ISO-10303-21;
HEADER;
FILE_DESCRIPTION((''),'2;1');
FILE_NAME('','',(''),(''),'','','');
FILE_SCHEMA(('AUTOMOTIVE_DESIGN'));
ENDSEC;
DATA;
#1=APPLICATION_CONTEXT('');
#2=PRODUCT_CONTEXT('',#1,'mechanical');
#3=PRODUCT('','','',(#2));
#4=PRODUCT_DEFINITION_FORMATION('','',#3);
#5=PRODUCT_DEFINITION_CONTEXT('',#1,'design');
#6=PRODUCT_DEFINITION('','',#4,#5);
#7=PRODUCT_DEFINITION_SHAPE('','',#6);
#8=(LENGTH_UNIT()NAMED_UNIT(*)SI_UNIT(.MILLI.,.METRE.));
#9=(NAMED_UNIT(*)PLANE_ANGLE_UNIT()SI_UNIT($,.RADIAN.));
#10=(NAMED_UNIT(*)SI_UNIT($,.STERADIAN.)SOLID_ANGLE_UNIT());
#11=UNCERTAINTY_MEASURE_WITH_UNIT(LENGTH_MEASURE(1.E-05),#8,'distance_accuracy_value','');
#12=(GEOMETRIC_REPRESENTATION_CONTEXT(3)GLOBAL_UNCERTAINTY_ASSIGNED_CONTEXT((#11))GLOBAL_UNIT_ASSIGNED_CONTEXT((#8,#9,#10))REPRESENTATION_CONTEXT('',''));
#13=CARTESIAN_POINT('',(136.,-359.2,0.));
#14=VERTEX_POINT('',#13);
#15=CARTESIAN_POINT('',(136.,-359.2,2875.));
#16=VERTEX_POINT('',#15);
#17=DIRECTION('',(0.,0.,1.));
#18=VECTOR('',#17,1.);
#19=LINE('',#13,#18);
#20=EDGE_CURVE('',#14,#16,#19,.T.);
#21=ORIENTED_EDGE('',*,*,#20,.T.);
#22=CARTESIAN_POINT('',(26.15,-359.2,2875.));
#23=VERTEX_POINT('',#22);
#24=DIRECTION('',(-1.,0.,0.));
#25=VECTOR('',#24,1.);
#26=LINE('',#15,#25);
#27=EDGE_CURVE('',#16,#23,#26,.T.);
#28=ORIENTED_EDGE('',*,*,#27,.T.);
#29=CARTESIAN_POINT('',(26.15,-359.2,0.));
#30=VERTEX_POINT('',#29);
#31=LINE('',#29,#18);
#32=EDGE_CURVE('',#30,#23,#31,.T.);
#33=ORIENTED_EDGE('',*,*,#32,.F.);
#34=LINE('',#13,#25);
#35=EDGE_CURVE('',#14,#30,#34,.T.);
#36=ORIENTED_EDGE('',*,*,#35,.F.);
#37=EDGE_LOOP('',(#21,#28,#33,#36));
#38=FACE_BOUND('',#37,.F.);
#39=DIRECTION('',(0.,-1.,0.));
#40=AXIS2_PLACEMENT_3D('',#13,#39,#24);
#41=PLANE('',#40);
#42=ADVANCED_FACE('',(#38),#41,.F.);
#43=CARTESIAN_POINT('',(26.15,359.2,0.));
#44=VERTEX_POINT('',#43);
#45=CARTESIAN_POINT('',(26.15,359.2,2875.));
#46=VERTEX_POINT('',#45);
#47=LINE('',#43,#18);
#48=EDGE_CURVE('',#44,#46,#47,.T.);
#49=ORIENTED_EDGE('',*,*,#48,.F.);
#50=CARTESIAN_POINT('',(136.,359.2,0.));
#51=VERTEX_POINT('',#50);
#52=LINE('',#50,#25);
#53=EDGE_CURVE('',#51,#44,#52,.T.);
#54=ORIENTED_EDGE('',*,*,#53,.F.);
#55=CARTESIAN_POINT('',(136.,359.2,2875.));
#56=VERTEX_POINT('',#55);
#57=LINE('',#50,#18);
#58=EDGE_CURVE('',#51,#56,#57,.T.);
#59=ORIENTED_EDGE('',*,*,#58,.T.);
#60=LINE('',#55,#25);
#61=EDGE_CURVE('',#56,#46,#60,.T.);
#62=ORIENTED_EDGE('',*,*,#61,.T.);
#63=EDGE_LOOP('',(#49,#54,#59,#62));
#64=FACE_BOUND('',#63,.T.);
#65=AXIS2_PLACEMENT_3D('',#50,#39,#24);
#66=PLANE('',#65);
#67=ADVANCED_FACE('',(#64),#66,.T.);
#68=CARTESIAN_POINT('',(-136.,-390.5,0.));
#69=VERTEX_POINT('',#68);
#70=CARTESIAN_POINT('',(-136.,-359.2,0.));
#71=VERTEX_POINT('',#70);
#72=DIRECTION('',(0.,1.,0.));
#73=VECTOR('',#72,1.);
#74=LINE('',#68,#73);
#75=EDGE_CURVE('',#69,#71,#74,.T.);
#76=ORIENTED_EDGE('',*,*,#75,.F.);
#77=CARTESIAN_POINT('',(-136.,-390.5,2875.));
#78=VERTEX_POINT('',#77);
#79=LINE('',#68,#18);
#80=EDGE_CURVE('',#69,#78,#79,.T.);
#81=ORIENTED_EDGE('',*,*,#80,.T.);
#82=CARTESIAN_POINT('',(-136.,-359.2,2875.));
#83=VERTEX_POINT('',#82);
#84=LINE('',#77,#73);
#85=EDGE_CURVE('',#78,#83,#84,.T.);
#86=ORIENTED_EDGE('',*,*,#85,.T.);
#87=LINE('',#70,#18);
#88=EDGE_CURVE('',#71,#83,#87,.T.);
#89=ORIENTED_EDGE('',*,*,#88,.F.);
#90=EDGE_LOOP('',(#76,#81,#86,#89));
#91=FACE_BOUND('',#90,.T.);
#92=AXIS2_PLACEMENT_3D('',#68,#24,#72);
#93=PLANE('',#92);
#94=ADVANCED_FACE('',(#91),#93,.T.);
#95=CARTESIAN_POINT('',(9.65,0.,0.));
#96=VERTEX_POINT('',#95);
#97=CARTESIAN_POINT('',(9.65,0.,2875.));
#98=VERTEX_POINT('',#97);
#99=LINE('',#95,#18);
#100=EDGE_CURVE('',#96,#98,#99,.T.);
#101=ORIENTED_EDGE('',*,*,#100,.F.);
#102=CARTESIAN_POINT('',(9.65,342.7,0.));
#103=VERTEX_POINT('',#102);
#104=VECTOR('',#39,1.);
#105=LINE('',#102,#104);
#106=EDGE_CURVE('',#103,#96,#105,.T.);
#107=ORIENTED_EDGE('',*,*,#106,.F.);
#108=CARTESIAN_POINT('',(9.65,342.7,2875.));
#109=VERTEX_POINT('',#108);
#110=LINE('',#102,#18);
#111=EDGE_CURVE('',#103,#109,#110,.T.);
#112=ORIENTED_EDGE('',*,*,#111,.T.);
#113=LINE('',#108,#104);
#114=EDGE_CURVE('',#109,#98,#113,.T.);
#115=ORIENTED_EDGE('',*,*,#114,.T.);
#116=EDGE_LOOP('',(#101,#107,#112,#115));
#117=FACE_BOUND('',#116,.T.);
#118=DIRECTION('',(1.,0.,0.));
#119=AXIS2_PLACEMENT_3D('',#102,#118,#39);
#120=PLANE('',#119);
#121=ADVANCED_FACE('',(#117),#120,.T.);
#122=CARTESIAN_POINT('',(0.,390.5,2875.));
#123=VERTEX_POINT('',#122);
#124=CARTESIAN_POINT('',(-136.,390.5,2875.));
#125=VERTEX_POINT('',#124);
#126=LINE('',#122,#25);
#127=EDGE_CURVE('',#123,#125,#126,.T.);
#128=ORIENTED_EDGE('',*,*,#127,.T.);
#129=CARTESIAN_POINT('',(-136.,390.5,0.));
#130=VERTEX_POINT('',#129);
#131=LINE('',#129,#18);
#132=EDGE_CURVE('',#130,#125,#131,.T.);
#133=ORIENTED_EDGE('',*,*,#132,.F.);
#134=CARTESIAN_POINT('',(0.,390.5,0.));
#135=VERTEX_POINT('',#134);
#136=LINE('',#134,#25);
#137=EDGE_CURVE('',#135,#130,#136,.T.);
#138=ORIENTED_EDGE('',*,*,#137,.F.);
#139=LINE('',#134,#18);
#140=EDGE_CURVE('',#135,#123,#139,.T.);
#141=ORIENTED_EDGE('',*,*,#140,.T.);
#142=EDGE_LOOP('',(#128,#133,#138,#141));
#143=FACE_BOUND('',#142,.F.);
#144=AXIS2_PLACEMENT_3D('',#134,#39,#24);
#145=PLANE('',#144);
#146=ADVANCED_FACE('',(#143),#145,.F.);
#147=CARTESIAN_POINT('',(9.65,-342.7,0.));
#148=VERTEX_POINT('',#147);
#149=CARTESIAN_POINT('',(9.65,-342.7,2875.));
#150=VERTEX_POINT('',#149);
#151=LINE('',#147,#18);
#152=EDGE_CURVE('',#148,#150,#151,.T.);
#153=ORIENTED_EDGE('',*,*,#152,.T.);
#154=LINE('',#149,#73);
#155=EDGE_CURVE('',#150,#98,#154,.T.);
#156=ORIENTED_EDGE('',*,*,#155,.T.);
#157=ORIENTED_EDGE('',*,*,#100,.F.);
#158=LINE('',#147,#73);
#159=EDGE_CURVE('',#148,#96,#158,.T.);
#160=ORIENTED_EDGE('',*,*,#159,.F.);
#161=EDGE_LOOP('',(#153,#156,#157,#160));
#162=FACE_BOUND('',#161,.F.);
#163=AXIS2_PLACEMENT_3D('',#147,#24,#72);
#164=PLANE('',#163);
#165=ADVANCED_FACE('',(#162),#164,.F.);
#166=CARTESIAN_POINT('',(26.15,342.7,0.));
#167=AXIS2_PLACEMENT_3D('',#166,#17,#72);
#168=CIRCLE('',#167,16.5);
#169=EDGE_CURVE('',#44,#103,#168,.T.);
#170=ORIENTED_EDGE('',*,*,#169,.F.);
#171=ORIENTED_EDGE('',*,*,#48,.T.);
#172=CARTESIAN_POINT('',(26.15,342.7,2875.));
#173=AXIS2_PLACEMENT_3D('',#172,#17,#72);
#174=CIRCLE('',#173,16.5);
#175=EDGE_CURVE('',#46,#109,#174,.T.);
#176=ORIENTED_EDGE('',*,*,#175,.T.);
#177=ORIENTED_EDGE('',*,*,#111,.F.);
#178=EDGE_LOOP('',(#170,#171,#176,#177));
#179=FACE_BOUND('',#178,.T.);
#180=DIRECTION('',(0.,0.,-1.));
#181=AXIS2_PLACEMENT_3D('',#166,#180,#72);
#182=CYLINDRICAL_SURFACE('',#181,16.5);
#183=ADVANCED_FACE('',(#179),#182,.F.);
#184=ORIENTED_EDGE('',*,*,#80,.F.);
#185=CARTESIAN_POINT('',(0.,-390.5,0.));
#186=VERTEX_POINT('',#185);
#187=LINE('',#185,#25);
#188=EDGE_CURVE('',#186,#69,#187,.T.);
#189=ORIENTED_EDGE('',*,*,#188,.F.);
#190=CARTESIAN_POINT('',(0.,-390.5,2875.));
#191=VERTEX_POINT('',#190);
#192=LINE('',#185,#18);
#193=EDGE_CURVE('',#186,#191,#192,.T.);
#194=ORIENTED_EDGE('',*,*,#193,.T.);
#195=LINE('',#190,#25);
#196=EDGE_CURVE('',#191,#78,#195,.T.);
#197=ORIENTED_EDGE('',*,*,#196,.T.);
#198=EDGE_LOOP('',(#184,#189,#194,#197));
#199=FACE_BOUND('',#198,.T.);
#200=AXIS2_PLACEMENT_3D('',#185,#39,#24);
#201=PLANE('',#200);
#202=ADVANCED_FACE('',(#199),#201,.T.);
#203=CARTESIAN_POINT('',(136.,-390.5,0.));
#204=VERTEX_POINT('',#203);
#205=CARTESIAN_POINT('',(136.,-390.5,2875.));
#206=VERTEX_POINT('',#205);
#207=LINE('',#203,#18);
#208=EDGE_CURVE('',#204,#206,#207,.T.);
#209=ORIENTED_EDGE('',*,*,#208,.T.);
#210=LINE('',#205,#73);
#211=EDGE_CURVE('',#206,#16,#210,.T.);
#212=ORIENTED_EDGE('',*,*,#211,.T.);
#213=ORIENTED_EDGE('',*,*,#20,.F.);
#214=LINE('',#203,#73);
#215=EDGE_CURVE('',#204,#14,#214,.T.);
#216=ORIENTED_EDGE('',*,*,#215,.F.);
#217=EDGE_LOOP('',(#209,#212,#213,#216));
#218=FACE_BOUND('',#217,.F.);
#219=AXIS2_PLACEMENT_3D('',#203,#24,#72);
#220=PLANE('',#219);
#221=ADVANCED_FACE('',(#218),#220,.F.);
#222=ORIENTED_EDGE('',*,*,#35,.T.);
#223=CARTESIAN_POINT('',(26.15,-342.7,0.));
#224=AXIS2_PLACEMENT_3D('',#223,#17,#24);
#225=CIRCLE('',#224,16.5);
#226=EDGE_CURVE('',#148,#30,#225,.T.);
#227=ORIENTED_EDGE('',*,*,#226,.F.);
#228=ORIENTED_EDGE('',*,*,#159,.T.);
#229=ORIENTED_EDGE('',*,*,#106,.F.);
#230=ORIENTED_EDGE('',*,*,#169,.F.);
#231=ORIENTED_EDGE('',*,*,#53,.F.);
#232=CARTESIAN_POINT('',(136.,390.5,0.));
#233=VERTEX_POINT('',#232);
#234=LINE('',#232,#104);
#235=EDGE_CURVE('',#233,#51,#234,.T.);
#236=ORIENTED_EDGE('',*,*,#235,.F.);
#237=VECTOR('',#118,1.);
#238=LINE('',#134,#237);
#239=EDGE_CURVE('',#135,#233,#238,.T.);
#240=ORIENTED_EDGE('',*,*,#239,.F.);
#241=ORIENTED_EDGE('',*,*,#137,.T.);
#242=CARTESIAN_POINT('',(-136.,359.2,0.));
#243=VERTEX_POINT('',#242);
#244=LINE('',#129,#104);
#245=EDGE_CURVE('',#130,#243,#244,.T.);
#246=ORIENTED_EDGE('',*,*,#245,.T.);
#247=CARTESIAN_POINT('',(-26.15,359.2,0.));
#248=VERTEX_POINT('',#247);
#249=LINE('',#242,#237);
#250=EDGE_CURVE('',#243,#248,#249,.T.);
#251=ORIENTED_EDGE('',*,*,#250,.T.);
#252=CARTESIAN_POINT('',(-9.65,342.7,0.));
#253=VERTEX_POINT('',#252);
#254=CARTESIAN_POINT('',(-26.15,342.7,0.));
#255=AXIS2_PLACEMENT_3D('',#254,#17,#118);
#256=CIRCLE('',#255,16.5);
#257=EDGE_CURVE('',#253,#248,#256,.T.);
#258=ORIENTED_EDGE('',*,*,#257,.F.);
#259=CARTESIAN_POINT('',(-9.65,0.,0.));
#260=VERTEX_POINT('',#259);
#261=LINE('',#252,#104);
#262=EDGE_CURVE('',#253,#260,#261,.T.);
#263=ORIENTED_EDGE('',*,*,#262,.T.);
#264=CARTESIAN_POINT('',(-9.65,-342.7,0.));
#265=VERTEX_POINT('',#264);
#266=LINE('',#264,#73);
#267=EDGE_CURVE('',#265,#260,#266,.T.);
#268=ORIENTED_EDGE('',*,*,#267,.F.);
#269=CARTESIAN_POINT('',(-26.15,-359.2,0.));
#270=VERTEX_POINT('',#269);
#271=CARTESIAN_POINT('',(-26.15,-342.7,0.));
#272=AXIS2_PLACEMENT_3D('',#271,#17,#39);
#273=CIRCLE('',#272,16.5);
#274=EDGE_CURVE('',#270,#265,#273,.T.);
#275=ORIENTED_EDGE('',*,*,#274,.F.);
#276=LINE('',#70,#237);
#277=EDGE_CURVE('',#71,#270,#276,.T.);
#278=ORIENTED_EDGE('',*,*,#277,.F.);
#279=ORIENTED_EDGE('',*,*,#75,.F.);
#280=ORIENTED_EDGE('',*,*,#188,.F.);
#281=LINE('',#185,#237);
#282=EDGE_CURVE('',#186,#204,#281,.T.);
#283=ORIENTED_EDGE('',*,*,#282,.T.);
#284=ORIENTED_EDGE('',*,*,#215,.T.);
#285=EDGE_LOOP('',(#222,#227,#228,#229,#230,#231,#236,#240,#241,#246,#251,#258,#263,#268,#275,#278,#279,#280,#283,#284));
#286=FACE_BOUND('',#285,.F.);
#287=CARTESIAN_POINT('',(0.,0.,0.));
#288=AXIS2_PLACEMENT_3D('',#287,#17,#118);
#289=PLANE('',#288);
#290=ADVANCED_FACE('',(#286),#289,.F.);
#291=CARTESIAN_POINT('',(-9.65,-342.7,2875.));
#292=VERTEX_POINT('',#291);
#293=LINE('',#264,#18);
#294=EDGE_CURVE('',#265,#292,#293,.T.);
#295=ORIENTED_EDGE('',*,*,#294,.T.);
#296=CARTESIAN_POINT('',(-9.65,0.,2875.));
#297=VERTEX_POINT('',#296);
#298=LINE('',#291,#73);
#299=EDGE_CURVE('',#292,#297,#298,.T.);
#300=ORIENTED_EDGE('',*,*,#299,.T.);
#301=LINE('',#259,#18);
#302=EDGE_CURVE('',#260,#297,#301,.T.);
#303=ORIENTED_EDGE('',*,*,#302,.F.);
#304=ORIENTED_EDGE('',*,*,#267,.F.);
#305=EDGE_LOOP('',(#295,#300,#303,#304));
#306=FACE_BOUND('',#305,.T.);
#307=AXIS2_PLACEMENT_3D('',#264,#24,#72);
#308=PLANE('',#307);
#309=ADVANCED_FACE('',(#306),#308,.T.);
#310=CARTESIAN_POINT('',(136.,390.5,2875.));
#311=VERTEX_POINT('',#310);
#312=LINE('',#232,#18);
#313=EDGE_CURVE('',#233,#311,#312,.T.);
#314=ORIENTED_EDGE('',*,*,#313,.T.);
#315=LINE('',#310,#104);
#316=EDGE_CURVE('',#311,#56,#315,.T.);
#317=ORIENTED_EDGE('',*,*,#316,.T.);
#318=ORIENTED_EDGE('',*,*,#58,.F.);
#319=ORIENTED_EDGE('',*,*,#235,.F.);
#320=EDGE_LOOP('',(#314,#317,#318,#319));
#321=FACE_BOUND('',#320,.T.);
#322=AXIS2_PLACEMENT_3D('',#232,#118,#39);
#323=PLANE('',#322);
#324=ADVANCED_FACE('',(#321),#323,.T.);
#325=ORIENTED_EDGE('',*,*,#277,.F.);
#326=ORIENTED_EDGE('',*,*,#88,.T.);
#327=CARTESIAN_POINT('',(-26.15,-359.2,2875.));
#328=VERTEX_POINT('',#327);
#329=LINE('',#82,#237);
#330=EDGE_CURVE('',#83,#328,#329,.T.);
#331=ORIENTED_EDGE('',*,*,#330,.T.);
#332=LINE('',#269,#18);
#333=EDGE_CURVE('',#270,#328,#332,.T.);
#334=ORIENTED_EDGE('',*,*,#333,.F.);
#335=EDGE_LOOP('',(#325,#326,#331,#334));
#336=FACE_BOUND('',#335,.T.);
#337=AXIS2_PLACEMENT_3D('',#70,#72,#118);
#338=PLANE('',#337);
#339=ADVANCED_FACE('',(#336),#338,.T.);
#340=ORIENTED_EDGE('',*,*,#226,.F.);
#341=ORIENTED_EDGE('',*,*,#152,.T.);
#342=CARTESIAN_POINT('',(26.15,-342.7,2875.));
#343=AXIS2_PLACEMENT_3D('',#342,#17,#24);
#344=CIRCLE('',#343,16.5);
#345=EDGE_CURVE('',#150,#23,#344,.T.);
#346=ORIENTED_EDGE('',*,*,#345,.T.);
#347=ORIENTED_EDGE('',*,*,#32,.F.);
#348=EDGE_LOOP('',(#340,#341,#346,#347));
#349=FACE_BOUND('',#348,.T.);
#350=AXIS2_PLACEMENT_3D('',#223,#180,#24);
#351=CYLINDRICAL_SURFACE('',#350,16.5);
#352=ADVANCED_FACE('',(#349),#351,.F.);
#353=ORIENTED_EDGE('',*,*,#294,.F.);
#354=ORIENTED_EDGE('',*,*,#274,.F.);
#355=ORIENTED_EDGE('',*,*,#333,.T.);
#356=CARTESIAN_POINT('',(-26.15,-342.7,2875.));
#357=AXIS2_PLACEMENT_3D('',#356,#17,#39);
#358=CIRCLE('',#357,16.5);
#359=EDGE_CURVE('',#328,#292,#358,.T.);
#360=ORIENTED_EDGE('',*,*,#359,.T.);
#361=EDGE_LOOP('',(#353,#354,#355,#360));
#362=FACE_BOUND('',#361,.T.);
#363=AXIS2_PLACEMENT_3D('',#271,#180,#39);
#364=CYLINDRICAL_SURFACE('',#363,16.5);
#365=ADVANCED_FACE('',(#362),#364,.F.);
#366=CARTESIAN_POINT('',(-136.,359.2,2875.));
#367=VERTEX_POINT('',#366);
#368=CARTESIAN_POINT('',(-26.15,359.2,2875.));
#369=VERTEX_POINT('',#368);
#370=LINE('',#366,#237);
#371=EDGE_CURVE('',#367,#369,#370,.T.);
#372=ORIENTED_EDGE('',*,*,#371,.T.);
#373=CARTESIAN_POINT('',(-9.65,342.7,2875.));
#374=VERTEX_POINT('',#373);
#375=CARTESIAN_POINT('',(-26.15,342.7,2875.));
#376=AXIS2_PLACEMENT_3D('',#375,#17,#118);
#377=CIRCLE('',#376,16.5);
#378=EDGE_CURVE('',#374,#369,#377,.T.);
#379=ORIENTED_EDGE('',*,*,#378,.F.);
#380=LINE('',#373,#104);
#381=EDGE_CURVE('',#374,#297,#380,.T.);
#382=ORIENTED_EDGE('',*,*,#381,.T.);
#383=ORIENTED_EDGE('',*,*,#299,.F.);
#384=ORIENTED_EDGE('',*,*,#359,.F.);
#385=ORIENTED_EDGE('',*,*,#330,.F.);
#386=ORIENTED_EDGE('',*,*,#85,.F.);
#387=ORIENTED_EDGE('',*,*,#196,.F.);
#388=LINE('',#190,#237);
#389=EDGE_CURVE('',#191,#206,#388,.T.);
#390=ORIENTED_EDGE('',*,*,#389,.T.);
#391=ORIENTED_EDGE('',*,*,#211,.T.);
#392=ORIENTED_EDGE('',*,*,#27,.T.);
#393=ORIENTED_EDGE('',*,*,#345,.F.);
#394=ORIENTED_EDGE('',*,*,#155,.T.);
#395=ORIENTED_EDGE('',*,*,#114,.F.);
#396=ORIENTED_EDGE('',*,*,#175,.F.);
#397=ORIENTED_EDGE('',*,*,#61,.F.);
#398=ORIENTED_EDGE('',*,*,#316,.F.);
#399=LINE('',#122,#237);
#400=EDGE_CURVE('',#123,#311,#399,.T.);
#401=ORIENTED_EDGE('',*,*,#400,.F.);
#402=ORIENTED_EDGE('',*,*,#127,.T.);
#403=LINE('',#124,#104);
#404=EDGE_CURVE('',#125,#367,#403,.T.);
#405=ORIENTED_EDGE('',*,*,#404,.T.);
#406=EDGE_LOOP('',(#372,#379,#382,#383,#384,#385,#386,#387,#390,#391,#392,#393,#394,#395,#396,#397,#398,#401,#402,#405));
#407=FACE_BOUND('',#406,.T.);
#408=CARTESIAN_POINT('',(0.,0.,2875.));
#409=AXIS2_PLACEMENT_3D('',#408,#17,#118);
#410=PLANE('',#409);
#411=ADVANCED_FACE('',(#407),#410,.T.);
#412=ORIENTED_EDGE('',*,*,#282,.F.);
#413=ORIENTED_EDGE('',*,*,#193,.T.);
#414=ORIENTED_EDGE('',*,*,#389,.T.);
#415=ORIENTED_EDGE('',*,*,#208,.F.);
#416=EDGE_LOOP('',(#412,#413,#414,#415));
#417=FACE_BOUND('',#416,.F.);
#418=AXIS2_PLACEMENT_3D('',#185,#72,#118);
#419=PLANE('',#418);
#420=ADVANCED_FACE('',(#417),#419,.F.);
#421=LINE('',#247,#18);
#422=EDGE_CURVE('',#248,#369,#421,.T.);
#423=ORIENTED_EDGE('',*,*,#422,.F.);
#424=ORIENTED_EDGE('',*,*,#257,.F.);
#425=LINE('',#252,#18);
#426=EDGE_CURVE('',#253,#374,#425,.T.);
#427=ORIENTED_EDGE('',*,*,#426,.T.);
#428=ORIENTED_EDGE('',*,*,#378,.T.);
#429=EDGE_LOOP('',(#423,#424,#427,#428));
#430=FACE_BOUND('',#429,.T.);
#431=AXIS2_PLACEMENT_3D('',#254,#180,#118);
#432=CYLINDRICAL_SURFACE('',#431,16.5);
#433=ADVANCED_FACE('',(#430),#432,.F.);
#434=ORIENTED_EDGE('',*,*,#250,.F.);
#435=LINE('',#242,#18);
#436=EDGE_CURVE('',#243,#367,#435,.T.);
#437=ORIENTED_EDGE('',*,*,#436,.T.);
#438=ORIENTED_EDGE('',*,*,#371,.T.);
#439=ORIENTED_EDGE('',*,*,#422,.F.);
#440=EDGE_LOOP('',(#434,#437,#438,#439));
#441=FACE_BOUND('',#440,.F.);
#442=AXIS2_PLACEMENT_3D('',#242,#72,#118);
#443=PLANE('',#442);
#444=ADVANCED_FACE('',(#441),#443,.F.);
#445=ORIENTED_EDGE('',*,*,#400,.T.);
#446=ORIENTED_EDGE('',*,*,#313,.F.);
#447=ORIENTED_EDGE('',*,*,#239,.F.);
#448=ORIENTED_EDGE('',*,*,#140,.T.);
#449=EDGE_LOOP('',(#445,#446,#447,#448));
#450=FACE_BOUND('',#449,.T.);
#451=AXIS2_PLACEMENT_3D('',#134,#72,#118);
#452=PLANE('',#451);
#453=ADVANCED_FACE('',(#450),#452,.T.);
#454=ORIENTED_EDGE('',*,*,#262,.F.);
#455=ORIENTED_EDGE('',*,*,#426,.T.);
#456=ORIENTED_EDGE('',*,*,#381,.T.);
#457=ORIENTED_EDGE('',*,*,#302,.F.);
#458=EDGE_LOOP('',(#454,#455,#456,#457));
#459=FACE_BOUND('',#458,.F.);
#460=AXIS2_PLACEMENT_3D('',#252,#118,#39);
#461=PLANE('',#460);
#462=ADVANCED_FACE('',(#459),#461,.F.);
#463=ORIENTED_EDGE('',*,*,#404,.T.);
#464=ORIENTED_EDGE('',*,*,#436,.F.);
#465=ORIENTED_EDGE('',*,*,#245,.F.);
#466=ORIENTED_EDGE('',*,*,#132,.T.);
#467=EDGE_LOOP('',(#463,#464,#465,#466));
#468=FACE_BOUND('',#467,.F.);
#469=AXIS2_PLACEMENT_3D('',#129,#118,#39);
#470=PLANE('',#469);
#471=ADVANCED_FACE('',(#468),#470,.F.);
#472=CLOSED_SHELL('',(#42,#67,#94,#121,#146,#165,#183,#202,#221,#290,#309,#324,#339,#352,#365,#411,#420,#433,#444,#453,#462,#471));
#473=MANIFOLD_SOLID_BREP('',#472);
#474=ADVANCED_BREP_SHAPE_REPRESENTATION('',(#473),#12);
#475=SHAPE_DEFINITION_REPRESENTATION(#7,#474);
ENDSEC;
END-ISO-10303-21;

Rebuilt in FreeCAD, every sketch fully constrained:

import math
import FreeCAD as App
import Part
import Sketcher

doc = App.newDocument("Part")
body = doc.addObject("PartDesign::Body", "Body")

# Sketch on XY plane
sketch1 = body.newObject("Sketcher::SketchObject", "Sketch")
sketch1.AttachmentSupport = (doc.getObject("XY_Plane"), [""])
sketch1.MapMode = "FlatFace"
sketch1.addGeometry(Part.LineSegment(App.Vector(-136, -359, 0), App.Vector(-136, -390, 0)), False)
sketch1.addGeometry(Part.LineSegment(App.Vector(-136, -390, 0), App.Vector(136, -390, 0)), False)
sketch1.addGeometry(Part.LineSegment(App.Vector(136, -390, 0), App.Vector(136, -359, 0)), False)
sketch1.addGeometry(Part.LineSegment(App.Vector(136, -359, 0), App.Vector(26, -359, 0)), False)
sketch1.addGeometry(Part.ArcOfCircle(Part.Circle(App.Vector(26, -343, 0), App.Vector(0, 0, 1), 16), math.radians(180), math.radians(270)), False)
sketch1.addGeometry(Part.LineSegment(App.Vector(10, -343, 0), App.Vector(10, 343, 0)), False)
sketch1.addGeometry(Part.ArcOfCircle(Part.Circle(App.Vector(26, 343, 0), App.Vector(0, 0, 1), 16), math.radians(90), math.radians(180)), False)
sketch1.addGeometry(Part.LineSegment(App.Vector(26, 359, 0), App.Vector(136, 359, 0)), False)
sketch1.addGeometry(Part.LineSegment(App.Vector(136, 359, 0), App.Vector(136, 390, 0)), False)
sketch1.addGeometry(Part.LineSegment(App.Vector(136, 390, 0), App.Vector(-136, 390, 0)), False)
sketch1.addGeometry(Part.LineSegment(App.Vector(-136, 390, 0), App.Vector(-136, 359, 0)), False)
sketch1.addGeometry(Part.LineSegment(App.Vector(-136, 359, 0), App.Vector(-26, 359, 0)), False)
sketch1.addGeometry(Part.ArcOfCircle(Part.Circle(App.Vector(-26, 343, 0), App.Vector(0, 0, 1), 16), math.radians(0), math.radians(90)), False)
sketch1.addGeometry(Part.LineSegment(App.Vector(-10, 343, 0), App.Vector(-10, -343, 0)), False)
sketch1.addGeometry(Part.ArcOfCircle(Part.Circle(App.Vector(-26, -343, 0), App.Vector(0, 0, 1), 16), math.radians(-90), math.radians(0)), False)
sketch1.addGeometry(Part.LineSegment(App.Vector(-26, -359, 0), App.Vector(-136, -359, 0)), False)
sketch1.addConstraint(Sketcher.Constraint("Coincident", 0, 2, 1, 1))
sketch1.addConstraint(Sketcher.Constraint("Coincident", 1, 2, 2, 1))
sketch1.addConstraint(Sketcher.Constraint("Coincident", 2, 2, 3, 1))
sketch1.addConstraint(Sketcher.Constraint("Tangent", 3, 2, 4, 2))
sketch1.addConstraint(Sketcher.Constraint("Tangent", 4, 1, 5, 1))
sketch1.addConstraint(Sketcher.Constraint("Tangent", 5, 2, 6, 2))
sketch1.addConstraint(Sketcher.Constraint("Tangent", 6, 1, 7, 1))
sketch1.addConstraint(Sketcher.Constraint("Coincident", 7, 2, 8, 1))
sketch1.addConstraint(Sketcher.Constraint("Coincident", 8, 2, 9, 1))
sketch1.addConstraint(Sketcher.Constraint("Coincident", 9, 2, 10, 1))
sketch1.addConstraint(Sketcher.Constraint("Coincident", 10, 2, 11, 1))
sketch1.addConstraint(Sketcher.Constraint("Tangent", 11, 2, 12, 2))
sketch1.addConstraint(Sketcher.Constraint("Tangent", 12, 1, 13, 1))
sketch1.addConstraint(Sketcher.Constraint("Tangent", 13, 2, 14, 2))
sketch1.addConstraint(Sketcher.Constraint("Tangent", 14, 1, 15, 1))
sketch1.addConstraint(Sketcher.Constraint("Coincident", 15, 2, 0, 1))
sketch1.addConstraint(Sketcher.Constraint("Vertical", 0))
sketch1.addConstraint(Sketcher.Constraint("Horizontal", 1))
sketch1.addConstraint(Sketcher.Constraint("Vertical", 2))
sketch1.addConstraint(Sketcher.Constraint("Horizontal", 3))
sketch1.addConstraint(Sketcher.Constraint("Vertical", 5))
sketch1.addConstraint(Sketcher.Constraint("Horizontal", 7))
sketch1.addConstraint(Sketcher.Constraint("Vertical", 8))
sketch1.addConstraint(Sketcher.Constraint("Horizontal", 9))
sketch1.addConstraint(Sketcher.Constraint("Vertical", 10))
sketch1.addConstraint(Sketcher.Constraint("Horizontal", 11))
sketch1.addConstraint(Sketcher.Constraint("Vertical", 13))
sketch1.addConstraint(Sketcher.Constraint("Horizontal", 15))
sketch1.addConstraint(Sketcher.Constraint("Equal", 4, 6))
sketch1.addConstraint(Sketcher.Constraint("Equal", 6, 12))
sketch1.addConstraint(Sketcher.Constraint("Equal", 12, 14))
sketch1.addConstraint(Sketcher.Constraint("Symmetric", 4, 3, 12, 3, -1, 1))
sketch1.addConstraint(Sketcher.Constraint("Symmetric", 0, 2, 8, 2, -1, 1))
sketch1.addConstraint(Sketcher.Constraint("Symmetric", 7, 2, 10, 2, -2))
sketch1.addConstraint(Sketcher.Constraint("Symmetric", 2, 2, 15, 2, -2))
sketch1.addConstraint(Sketcher.Constraint("Radius", 4, 16.5))
sketch1.addConstraint(Sketcher.Constraint("DistanceY", 0, 2, 0, 1, 31.3))
sketch1.addConstraint(Sketcher.Constraint("DistanceX", 0, 2, -1, 1, 136.0))
sketch1.addConstraint(Sketcher.Constraint("DistanceY", 0, 2, -1, 1, 390.5))
sketch1.addConstraint(Sketcher.Constraint("DistanceX", -1, 1, 4, 1, 9.65))
pad1 = body.newObject("PartDesign::Pad", "Pad")
pad1.Profile = sketch1
pad1.Length = 2875

doc.recompute()
